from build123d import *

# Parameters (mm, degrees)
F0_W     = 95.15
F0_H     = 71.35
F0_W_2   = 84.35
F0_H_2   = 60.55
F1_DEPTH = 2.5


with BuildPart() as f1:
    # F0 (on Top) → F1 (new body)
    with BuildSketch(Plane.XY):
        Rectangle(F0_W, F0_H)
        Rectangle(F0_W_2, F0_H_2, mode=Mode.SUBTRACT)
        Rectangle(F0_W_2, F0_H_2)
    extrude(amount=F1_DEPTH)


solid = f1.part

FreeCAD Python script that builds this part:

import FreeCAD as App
import Part
import Sketcher


def add_polygon(sketch, points):
    """Adds a closed chain of lines whose ends are joined by coincident constraints."""
    first, n = sketch.GeometryCount, len(points)
    for a, b in zip(points, points[1:] + points[:1]):
        sketch.addGeometry(Part.LineSegment(App.Vector(*a, 0), App.Vector(*b, 0)), False)
    for i in range(n):
        sketch.addConstraint(Sketcher.Constraint("Coincident", first + i, 2, first + (i + 1) % n, 1))

doc = App.newDocument("Part")
params = doc.addObject("Spreadsheet::Sheet", "Params")
for row, (alias, value) in enumerate([
    ("sketch1_width", "95.15 mm"),
    ("sketch1_height", "71.35 mm"),
    ("pad1_length", "2.5 mm"),
], start=1):
    params.set(f"A{row}", alias)
    params.set(f"B{row}", "=" + value)
    params.setAlias(f"B{row}", alias)

body = doc.addObject("PartDesign::Body", "Body")

sketch1 = body.newObject("Sketcher::SketchObject", "Sketch")
sketch1.AttachmentSupport = (doc.getObject("XY_Plane"), [""])
sketch1.MapMode = "FlatFace"
add_polygon(sketch1, [(-48, 36), (-48, -36), (48, -36), (48, 36)])
sketch1.addConstraint([
    Sketcher.Constraint("Vertical", 0),
    Sketcher.Constraint("Horizontal", 1),
    Sketcher.Constraint("Vertical", 2),
    Sketcher.Constraint("Horizontal", 3),
    Sketcher.Constraint("Symmetric", 0, 2, 2, 2, -1, 1),
    Sketcher.Constraint("DistanceX", 1, 1, 1, 2, 95.15),
    Sketcher.Constraint("DistanceY", 0, 2, 0, 1, 71.35),
])
sketch1.setExpression("Constraints[9]", "Params.sketch1_width")
sketch1.setExpression("Constraints[10]", "Params.sketch1_height")
pad1 = body.newObject("PartDesign::Pad", "Pad")
pad1.Profile = sketch1
pad1.setExpression("Length", "Params.pad1_length")

doc.recompute()
